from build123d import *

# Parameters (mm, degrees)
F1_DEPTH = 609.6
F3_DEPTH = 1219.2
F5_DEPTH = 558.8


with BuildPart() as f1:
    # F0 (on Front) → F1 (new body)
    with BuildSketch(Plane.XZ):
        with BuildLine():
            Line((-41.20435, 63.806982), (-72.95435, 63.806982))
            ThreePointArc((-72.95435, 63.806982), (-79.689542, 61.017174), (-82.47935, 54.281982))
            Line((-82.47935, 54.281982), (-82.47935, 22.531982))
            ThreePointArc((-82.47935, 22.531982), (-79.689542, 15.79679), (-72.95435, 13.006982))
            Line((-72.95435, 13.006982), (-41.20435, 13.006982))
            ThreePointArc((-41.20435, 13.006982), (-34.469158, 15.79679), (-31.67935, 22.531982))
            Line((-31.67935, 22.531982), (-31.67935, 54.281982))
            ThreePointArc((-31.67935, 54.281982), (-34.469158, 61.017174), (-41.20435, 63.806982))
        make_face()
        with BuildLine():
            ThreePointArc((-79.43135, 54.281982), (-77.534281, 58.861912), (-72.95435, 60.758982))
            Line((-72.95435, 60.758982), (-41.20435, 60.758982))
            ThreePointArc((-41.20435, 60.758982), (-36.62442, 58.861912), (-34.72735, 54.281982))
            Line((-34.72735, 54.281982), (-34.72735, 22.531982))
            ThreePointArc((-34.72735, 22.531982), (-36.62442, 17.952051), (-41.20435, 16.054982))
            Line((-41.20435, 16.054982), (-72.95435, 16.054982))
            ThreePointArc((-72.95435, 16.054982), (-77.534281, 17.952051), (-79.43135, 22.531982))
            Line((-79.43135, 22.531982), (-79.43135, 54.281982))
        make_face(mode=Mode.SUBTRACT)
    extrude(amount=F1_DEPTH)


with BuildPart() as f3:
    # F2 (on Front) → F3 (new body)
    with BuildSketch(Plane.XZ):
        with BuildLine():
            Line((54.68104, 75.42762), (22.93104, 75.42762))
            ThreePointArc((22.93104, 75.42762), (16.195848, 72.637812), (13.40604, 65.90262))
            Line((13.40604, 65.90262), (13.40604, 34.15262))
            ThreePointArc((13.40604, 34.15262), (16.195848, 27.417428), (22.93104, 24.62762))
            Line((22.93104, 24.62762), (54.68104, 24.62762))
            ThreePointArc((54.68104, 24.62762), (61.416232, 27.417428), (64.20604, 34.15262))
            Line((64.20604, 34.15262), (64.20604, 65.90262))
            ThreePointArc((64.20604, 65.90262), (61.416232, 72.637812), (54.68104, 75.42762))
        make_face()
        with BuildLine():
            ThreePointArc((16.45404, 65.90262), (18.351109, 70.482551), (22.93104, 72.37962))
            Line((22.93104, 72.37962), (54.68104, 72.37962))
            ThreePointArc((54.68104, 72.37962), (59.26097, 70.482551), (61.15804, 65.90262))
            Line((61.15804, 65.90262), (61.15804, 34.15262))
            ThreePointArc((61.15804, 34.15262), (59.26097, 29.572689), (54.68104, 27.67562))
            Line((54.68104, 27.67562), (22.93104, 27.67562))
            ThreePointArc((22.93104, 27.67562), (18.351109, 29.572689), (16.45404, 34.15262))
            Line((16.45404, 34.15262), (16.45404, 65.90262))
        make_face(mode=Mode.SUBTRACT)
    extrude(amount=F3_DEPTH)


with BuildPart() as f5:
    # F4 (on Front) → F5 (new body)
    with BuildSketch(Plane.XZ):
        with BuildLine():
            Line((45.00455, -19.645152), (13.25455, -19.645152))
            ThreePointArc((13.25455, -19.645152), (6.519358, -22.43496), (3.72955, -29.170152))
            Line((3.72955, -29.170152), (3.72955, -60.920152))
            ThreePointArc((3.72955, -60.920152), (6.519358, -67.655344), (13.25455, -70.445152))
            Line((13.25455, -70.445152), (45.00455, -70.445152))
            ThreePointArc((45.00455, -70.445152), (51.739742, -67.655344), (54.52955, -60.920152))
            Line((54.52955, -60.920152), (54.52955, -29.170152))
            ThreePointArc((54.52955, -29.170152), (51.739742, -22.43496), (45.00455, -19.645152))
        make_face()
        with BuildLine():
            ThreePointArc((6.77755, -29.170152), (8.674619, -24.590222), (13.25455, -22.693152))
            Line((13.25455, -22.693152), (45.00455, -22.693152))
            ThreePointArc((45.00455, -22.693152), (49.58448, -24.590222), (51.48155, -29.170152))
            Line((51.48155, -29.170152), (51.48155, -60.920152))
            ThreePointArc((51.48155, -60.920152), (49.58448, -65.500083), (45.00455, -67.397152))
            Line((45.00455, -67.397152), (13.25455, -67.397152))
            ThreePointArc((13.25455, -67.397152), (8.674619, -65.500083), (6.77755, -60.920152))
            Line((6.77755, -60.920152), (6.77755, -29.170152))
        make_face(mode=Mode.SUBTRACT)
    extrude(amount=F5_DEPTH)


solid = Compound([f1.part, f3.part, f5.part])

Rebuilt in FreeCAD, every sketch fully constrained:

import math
import FreeCAD as App
import Part
import Sketcher
Q = App.Units.Quantity

doc = App.newDocument("Part")
body = doc.addObject("PartDesign::Body", "Body")

# Sketch on XZ plane
sketch1 = body.newObject("Sketcher::SketchObject", "Sketch")
sketch1.AttachmentSupport = (doc.getObject("XZ_Plane"), [""])
sketch1.MapMode = "FlatFace"
sketch1.addGeometry(Part.LineSegment(App.Vector(-41, 64, 0), App.Vector(-73, 64, 0)), False)
sketch1.addGeometry(Part.ArcOfCircle(Part.Circle(App.Vector(-73, 54, 0), App.Vector(0, 0, 1), 10), math.radians(90), math.radians(180)), False)
sketch1.addGeometry(Part.LineSegment(App.Vector(-82, 54, 0), App.Vector(-82, 23, 0)), False)
sketch1.addGeometry(Part.ArcOfCircle(Part.Circle(App.Vector(-73, 23, 0), App.Vector(0, 0, 1), 10), math.radians(-180), math.radians(-90)), False)
sketch1.addGeometry(Part.LineSegment(App.Vector(-73, 13, 0), App.Vector(-41, 13, 0)), False)
sketch1.addGeometry(Part.ArcOfCircle(Part.Circle(App.Vector(-41, 23, 0), App.Vector(0, 0, 1), 10), math.radians(-90), math.radians(0)), False)
sketch1.addGeometry(Part.LineSegment(App.Vector(-32, 23, 0), App.Vector(-32, 54, 0)), False)
sketch1.addGeometry(Part.ArcOfCircle(Part.Circle(App.Vector(-41, 54, 0), App.Vector(0, 0, 1), 10), math.radians(0), math.radians(90)), False)
sketch1.addGeometry(Part.LineSegment(App.Vector(-79, 23, 0), App.Vector(-79, 54, 0)), False)
sketch1.addGeometry(Part.ArcOfCircle(Part.Circle(App.Vector(-73, 54, 0), App.Vector(0, 0, 1), 6), math.radians(90), math.radians(180)), False)
sketch1.addGeometry(Part.LineSegment(App.Vector(-73, 61, 0), App.Vector(-41, 61, 0)), False)
sketch1.addGeometry(Part.ArcOfCircle(Part.Circle(App.Vector(-41, 54, 0), App.Vector(0, 0, 1), 6), math.radians(0), math.radians(90)), False)
sketch1.addGeometry(Part.LineSegment(App.Vector(-35, 54, 0), App.Vector(-35, 23, 0)), False)
sketch1.addGeometry(Part.ArcOfCircle(Part.Circle(App.Vector(-41, 23, 0), App.Vector(0, 0, 1), 6), math.radians(-90), math.radians(0)), False)
sketch1.addGeometry(Part.LineSegment(App.Vector(-41, 16, 0), App.Vector(-73, 16, 0)), False)
sketch1.addGeometry(Part.ArcOfCircle(Part.Circle(App.Vector(-73, 23, 0), App.Vector(0, 0, 1), 6), math.radians(180), math.radians(270)), False)
sketch1.addConstraint(Sketcher.Constraint("Tangent", 0, 2, 1, 1))
sketch1.addConstraint(Sketcher.Constraint("Tangent", 1, 2, 2, 1))
sketch1.addConstraint(Sketcher.Constraint("Tangent", 2, 2, 3, 1))
sketch1.addConstraint(Sketcher.Constraint("Tangent", 3, 2, 4, 1))
sketch1.addConstraint(Sketcher.Constraint("Tangent", 4, 2, 5, 1))
sketch1.addConstraint(Sketcher.Constraint("Tangent", 5, 2, 6, 1))
sketch1.addConstraint(Sketcher.Constraint("Tangent", 6, 2, 7, 1))
sketch1.addConstraint(Sketcher.Constraint("Tangent", 7, 2, 0, 1))
sketch1.addConstraint(Sketcher.Constraint("Tangent", 8, 2, 9, 2))
sketch1.addConstraint(Sketcher.Constraint("Tangent", 9, 1, 10, 1))
sketch1.addConstraint(Sketcher.Constraint("Tangent", 10, 2, 11, 2))
sketch1.addConstraint(Sketcher.Constraint("Tangent", 11, 1, 12, 1))
sketch1.addConstraint(Sketcher.Constraint("Tangent", 12, 2, 13, 2))
sketch1.addConstraint(Sketcher.Constraint("Tangent", 13, 1, 14, 1))
sketch1.addConstraint(Sketcher.Constraint("Tangent", 14, 2, 15, 2))
sketch1.addConstraint(Sketcher.Constraint("Tangent", 15, 1, 8, 1))
sketch1.addConstraint(Sketcher.Constraint("Horizontal", 0))
sketch1.addConstraint(Sketcher.Constraint("Vertical", 2))
sketch1.addConstraint(Sketcher.Constraint("Horizontal", 4))
sketch1.addConstraint(Sketcher.Constraint("Vertical", 6))
sketch1.addConstraint(Sketcher.Constraint("Vertical", 8))
sketch1.addConstraint(Sketcher.Constraint("Horizontal", 10))
sketch1.addConstraint(Sketcher.Constraint("Vertical", 12))
sketch1.addConstraint(Sketcher.Constraint("Horizontal", 14))
sketch1.addConstraint(Sketcher.Constraint("Coincident", 9, 3, 1, 3))
sketch1.addConstraint(Sketcher.Constraint("Coincident", 11, 3, 7, 3))
sketch1.addConstraint(Sketcher.Constraint("Coincident", 13, 3, 5, 3))
sketch1.addConstraint(Sketcher.Constraint("Equal", 1, 3))
sketch1.addConstraint(Sketcher.Constraint("Equal", 3, 5))
sketch1.addConstraint(Sketcher.Constraint("Equal", 5, 7))
sketch1.addConstraint(Sketcher.Constraint("Equal", 13, 15))
sketch1.addConstraint(Sketcher.Constraint("Equal", 14, 2))
sketch1.addConstraint(Sketcher.Constraint("Radius", 1, Q("0.375 in")))
sketch1.addConstraint(Sketcher.Constraint("Radius", 9, Q("0.255 in")))
sketch1.addConstraint(Sketcher.Constraint("DistanceX", 0, 2, 0, 1, Q("1.25 in")))
sketch1.addConstraint(Sketcher.Constraint("DistanceX", 1, 3, -1, 1, Q("72.95435 mm")))
sketch1.addConstraint(Sketcher.Constraint("DistanceY", -1, 1, 1, 3, Q("54.281982 mm")))
pad1 = body.newObject("PartDesign::Pad", "Pad")
pad1.Profile = sketch1
pad1.Length = Q("24 in")
body2 = doc.addObject("PartDesign::Body", "Body001")

# Sketch on XZ plane
sketch2 = body2.newObject("Sketcher::SketchObject", "Sketch001")
sketch2.AttachmentSupport = (doc.getObject("XZ_Plane001"), [""])
sketch2.MapMode = "FlatFace"
sketch2.addGeometry(Part.LineSegment(App.Vector(55, 75, 0), App.Vector(23, 75, 0)), False)
sketch2.addGeometry(Part.ArcOfCircle(Part.Circle(App.Vector(23, 66, 0), App.Vector(0, 0, 1), 10), math.radians(90), math.radians(180)), False)
sketch2.addGeometry(Part.LineSegment(App.Vector(13, 66, 0), App.Vector(13, 34, 0)), False)
sketch2.addGeometry(Part.ArcOfCircle(Part.Circle(App.Vector(23, 34, 0), App.Vector(0, 0, 1), 10), math.radians(-180), math.radians(-90)), False)
sketch2.addGeometry(Part.LineSegment(App.Vector(23, 25, 0), App.Vector(55, 25, 0)), False)
sketch2.addGeometry(Part.ArcOfCircle(Part.Circle(App.Vector(55, 34, 0), App.Vector(0, 0, 1), 10), math.radians(-90), math.radians(0)), False)
sketch2.addGeometry(Part.LineSegment(App.Vector(64, 34, 0), App.Vector(64, 66, 0)), False)
sketch2.addGeometry(Part.ArcOfCircle(Part.Circle(App.Vector(55, 66, 0), App.Vector(0, 0, 1), 10), math.radians(0), math.radians(90)), False)
sketch2.addGeometry(Part.LineSegment(App.Vector(16, 34, 0), App.Vector(16, 66, 0)), False)
sketch2.addGeometry(Part.ArcOfCircle(Part.Circle(App.Vector(23, 66, 0), App.Vector(0, 0, 1), 6), math.radians(90), math.radians(180)), False)
sketch2.addGeometry(Part.LineSegment(App.Vector(23, 72, 0), App.Vector(55, 72, 0)), False)
sketch2.addGeometry(Part.ArcOfCircle(Part.Circle(App.Vector(55, 66, 0), App.Vector(0, 0, 1), 6), math.radians(0), math.radians(90)), False)
sketch2.addGeometry(Part.LineSegment(App.Vector(61, 66, 0), App.Vector(61, 34, 0)), False)
sketch2.addGeometry(Part.ArcOfCircle(Part.Circle(App.Vector(55, 34, 0), App.Vector(0, 0, 1), 6), math.radians(-90), math.radians(0)), False)
sketch2.addGeometry(Part.LineSegment(App.Vector(55, 28, 0), App.Vector(23, 28, 0)), False)
sketch2.addGeometry(Part.ArcOfCircle(Part.Circle(App.Vector(23, 34, 0), App.Vector(0, 0, 1), 6), math.radians(180), math.radians(270)), False)
sketch2.addConstraint(Sketcher.Constraint("Tangent", 0, 2, 1, 1))
sketch2.addConstraint(Sketcher.Constraint("Tangent", 1, 2, 2, 1))
sketch2.addConstraint(Sketcher.Constraint("Tangent", 2, 2, 3, 1))
sketch2.addConstraint(Sketcher.Constraint("Tangent", 3, 2, 4, 1))
sketch2.addConstraint(Sketcher.Constraint("Tangent", 4, 2, 5, 1))
sketch2.addConstraint(Sketcher.Constraint("Tangent", 5, 2, 6, 1))
sketch2.addConstraint(Sketcher.Constraint("Tangent", 6, 2, 7, 1))
sketch2.addConstraint(Sketcher.Constraint("Tangent", 7, 2, 0, 1))
sketch2.addConstraint(Sketcher.Constraint("Tangent", 8, 2, 9, 2))
sketch2.addConstraint(Sketcher.Constraint("Tangent", 9, 1, 10, 1))
sketch2.addConstraint(Sketcher.Constraint("Tangent", 10, 2, 11, 2))
sketch2.addConstraint(Sketcher.Constraint("Tangent", 11, 1, 12, 1))
sketch2.addConstraint(Sketcher.Constraint("Tangent", 12, 2, 13, 2))
sketch2.addConstraint(Sketcher.Constraint("Tangent", 13, 1, 14, 1))
sketch2.addConstraint(Sketcher.Constraint("Tangent", 14, 2, 15, 2))
sketch2.addConstraint(Sketcher.Constraint("Tangent", 15, 1, 8, 1))
sketch2.addConstraint(Sketcher.Constraint("Horizontal", 0))
sketch2.addConstraint(Sketcher.Constraint("Vertical", 2))
sketch2.addConstraint(Sketcher.Constraint("Horizontal", 4))
sketch2.addConstraint(Sketcher.Constraint("Vertical", 6))
sketch2.addConstraint(Sketcher.Constraint("Vertical", 8))
sketch2.addConstraint(Sketcher.Constraint("Horizontal", 10))
sketch2.addConstraint(Sketcher.Constraint("Vertical", 12))
sketch2.addConstraint(Sketcher.Constraint("Horizontal", 14))
sketch2.addConstraint(Sketcher.Constraint("Coincident", 9, 3, 1, 3))
sketch2.addConstraint(Sketcher.Constraint("Coincident", 11, 3, 7, 3))
sketch2.addConstraint(Sketcher.Constraint("Coincident", 13, 3, 5, 3))
sketch2.addConstraint(Sketcher.Constraint("Equal", 1, 3))
sketch2.addConstraint(Sketcher.Constraint("Equal", 3, 5))
sketch2.addConstraint(Sketcher.Constraint("Equal", 5, 7))
sketch2.addConstraint(Sketcher.Constraint("Equal", 13, 15))
sketch2.addConstraint(Sketcher.Constraint("Equal", 14, 2))
sketch2.addConstraint(Sketcher.Constraint("Radius", 1, Q("0.375 in")))
sketch2.addConstraint(Sketcher.Constraint("Radius", 9, Q("0.2549999 in")))
sketch2.addConstraint(Sketcher.Constraint("DistanceX", 0, 2, 0, 1, Q("1.25 in")))
sketch2.addConstraint(Sketcher.Constraint("DistanceX", -1, 1, 1, 3, Q("22.93104 mm")))
sketch2.addConstraint(Sketcher.Constraint("DistanceY", -1, 1, 1, 3, Q("65.90262 mm")))
pad2 = body2.newObject("PartDesign::Pad", "Pad001")
pad2.Profile = sketch2
pad2.Length = Q("48 in")
body3 = doc.addObject("PartDesign::Body", "Body002")

# Sketch on XZ plane
sketch3 = body3.newObject("Sketcher::SketchObject", "Sketch002")
sketch3.AttachmentSupport = (doc.getObject("XZ_Plane002"), [""])
sketch3.MapMode = "FlatFace"
sketch3.addGeometry(Part.LineSegment(App.Vector(45, -20, 0), App.Vector(13, -20, 0)), False)
sketch3.addGeometry(Part.ArcOfCircle(Part.Circle(App.Vector(13, -29, 0), App.Vector(0, 0, 1), 10), math.radians(90), math.radians(180)), False)
sketch3.addGeometry(Part.LineSegment(App.Vector(4, -29, 0), App.Vector(4, -61, 0)), False)
sketch3.addGeometry(Part.ArcOfCircle(Part.Circle(App.Vector(13, -61, 0), App.Vector(0, 0, 1), 10), math.radians(-180), math.radians(-90)), False)
sketch3.addGeometry(Part.LineSegment(App.Vector(13, -70, 0), App.Vector(45, -70, 0)), False)
sketch3.addGeometry(Part.ArcOfCircle(Part.Circle(App.Vector(45, -61, 0), App.Vector(0, 0, 1), 10), math.radians(-90), math.radians(0)), False)
sketch3.addGeometry(Part.LineSegment(App.Vector(55, -61, 0), App.Vector(55, -29, 0)), False)
sketch3.addGeometry(Part.ArcOfCircle(Part.Circle(App.Vector(45, -29, 0), App.Vector(0, 0, 1), 10), math.radians(0), math.radians(90)), False)
sketch3.addGeometry(Part.LineSegment(App.Vector(7, -61, 0), App.Vector(7, -29, 0)), False)
sketch3.addGeometry(Part.ArcOfCircle(Part.Circle(App.Vector(13, -29, 0), App.Vector(0, 0, 1), 6), math.radians(90), math.radians(180)), False)
sketch3.addGeometry(Part.LineSegment(App.Vector(13, -23, 0), App.Vector(45, -23, 0)), False)
sketch3.addGeometry(Part.ArcOfCircle(Part.Circle(App.Vector(45, -29, 0), App.Vector(0, 0, 1), 6), math.radians(0), math.radians(90)), False)
sketch3.addGeometry(Part.LineSegment(App.Vector(51, -29, 0), App.Vector(51, -61, 0)), False)
sketch3.addGeometry(Part.ArcOfCircle(Part.Circle(App.Vector(45, -61, 0), App.Vector(0, 0, 1), 6), math.radians(-90), math.radians(0)), False)
sketch3.addGeometry(Part.LineSegment(App.Vector(45, -67, 0), App.Vector(13, -67, 0)), False)
sketch3.addGeometry(Part.ArcOfCircle(Part.Circle(App.Vector(13, -61, 0), App.Vector(0, 0, 1), 6), math.radians(180), math.radians(270)), False)
sketch3.addConstraint(Sketcher.Constraint("Tangent", 0, 2, 1, 1))
sketch3.addConstraint(Sketcher.Constraint("Tangent", 1, 2, 2, 1))
sketch3.addConstraint(Sketcher.Constraint("Tangent", 2, 2, 3, 1))
sketch3.addConstraint(Sketcher.Constraint("Tangent", 3, 2, 4, 1))
sketch3.addConstraint(Sketcher.Constraint("Tangent", 4, 2, 5, 1))
sketch3.addConstraint(Sketcher.Constraint("Tangent", 5, 2, 6, 1))
sketch3.addConstraint(Sketcher.Constraint("Tangent", 6, 2, 7, 1))
sketch3.addConstraint(Sketcher.Constraint("Tangent", 7, 2, 0, 1))
sketch3.addConstraint(Sketcher.Constraint("Tangent", 8, 2, 9, 2))
sketch3.addConstraint(Sketcher.Constraint("Tangent", 9, 1, 10, 1))
sketch3.addConstraint(Sketcher.Constraint("Tangent", 10, 2, 11, 2))
sketch3.addConstraint(Sketcher.Constraint("Tangent", 11, 1, 12, 1))
sketch3.addConstraint(Sketcher.Constraint("Tangent", 12, 2, 13, 2))
sketch3.addConstraint(Sketcher.Constraint("Tangent", 13, 1, 14, 1))
sketch3.addConstraint(Sketcher.Constraint("Tangent", 14, 2, 15, 2))
sketch3.addConstraint(Sketcher.Constraint("Tangent", 15, 1, 8, 1))
sketch3.addConstraint(Sketcher.Constraint("Horizontal", 0))
sketch3.addConstraint(Sketcher.Constraint("Vertical", 2))
sketch3.addConstraint(Sketcher.Constraint("Horizontal", 4))
sketch3.addConstraint(Sketcher.Constraint("Vertical", 6))
sketch3.addConstraint(Sketcher.Constraint("Vertical", 8))
sketch3.addConstraint(Sketcher.Constraint("Horizontal", 10))
sketch3.addConstraint(Sketcher.Constraint("Vertical", 12))
sketch3.addConstraint(Sketcher.Constraint("Horizontal", 14))
sketch3.addConstraint(Sketcher.Constraint("Coincident", 9, 3, 1, 3))
sketch3.addConstraint(Sketcher.Constraint("Coincident", 11, 3, 7, 3))
sketch3.addConstraint(Sketcher.Constraint("Coincident", 13, 3, 5, 3))
sketch3.addConstraint(Sketcher.Constraint("Equal", 1, 3))
sketch3.addConstraint(Sketcher.Constraint("Equal", 3, 5))
sketch3.addConstraint(Sketcher.Constraint("Equal", 5, 7))
sketch3.addConstraint(Sketcher.Constraint("Equal", 13, 15))
sketch3.addConstraint(Sketcher.Constraint("Equal", 14, 2))
sketch3.addConstraint(Sketcher.Constraint("Radius", 1, Q("0.375 in")))
sketch3.addConstraint(Sketcher.Constraint("Radius", 9, Q("0.255 in")))
sketch3.addConstraint(Sketcher.Constraint("DistanceX", 0, 2, 0, 1, Q("1.25 in")))
sketch3.addConstraint(Sketcher.Constraint("DistanceX", -1, 1, 1, 3, Q("13.25455 mm")))
sketch3.addConstraint(Sketcher.Constraint("DistanceY", 3, 3, -1, 1, Q("60.920152 mm")))
pad3 = body3.newObject("PartDesign::Pad", "Pad002")
pad3.Profile = sketch3
pad3.Length = Q("22 in")

doc.recompute()
